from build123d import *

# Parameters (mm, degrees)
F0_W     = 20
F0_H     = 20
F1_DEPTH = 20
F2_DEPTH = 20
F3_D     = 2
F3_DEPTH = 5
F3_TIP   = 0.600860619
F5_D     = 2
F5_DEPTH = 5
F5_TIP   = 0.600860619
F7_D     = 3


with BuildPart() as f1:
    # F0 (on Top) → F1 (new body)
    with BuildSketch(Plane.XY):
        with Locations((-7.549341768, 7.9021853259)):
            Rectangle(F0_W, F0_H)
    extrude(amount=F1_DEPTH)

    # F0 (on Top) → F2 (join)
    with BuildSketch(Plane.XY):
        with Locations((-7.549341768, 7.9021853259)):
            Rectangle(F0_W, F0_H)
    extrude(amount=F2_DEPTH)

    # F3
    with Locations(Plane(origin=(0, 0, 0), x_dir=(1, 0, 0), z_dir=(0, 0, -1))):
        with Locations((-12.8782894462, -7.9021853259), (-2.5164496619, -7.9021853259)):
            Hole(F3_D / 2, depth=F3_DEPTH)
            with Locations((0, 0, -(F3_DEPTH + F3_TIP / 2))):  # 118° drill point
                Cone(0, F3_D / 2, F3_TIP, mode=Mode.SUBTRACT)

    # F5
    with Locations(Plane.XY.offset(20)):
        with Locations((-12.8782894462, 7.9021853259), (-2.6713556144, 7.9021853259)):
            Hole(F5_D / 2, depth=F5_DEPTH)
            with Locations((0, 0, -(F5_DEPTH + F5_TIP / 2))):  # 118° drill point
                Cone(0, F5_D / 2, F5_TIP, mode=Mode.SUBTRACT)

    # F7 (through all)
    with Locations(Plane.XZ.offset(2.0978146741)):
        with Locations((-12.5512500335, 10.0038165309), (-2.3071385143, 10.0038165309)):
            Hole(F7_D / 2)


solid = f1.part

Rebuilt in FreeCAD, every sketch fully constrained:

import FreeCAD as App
import Part
import Sketcher

doc = App.newDocument("Part")
body = doc.addObject("PartDesign::Body", "Body")

sketch1 = body.newObject("Sketcher::SketchObject", "Sketch")
sketch1.AttachmentSupport = (doc.getObject("XY_Plane"), [""])
sketch1.MapMode = "FlatFace"
sketch1.addGeometry([
    Part.LineSegment(App.Vector(-17.549342, 17.902185, 0), App.Vector(-17.549342, -2.097815, 0)),
    Part.LineSegment(App.Vector(-17.549342, -2.097815, 0), App.Vector(2.450658, -2.097815, 0)),
    Part.LineSegment(App.Vector(2.450658, -2.097815, 0), App.Vector(2.450658, 17.902185, 0)),
    Part.LineSegment(App.Vector(2.450658, 17.902185, 0), App.Vector(-17.549342, 17.902185, 0)),
], False)
sketch1.addConstraint([
    Sketcher.Constraint("Coincident", 0, 2, 1, 1),
    Sketcher.Constraint("Coincident", 1, 2, 2, 1),
    Sketcher.Constraint("Coincident", 2, 2, 3, 1),
    Sketcher.Constraint("Coincident", 3, 2, 0, 1),
    Sketcher.Constraint("Vertical", 0),
    Sketcher.Constraint("Horizontal", 1),
    Sketcher.Constraint("Vertical", 2),
    Sketcher.Constraint("Horizontal", 3),
    Sketcher.Constraint("Equal", 3, 0),
    Sketcher.Constraint("DistanceX", 1, 1, 1, 2, 20.0),
    Sketcher.Constraint("DistanceX", 0, 2, -1, 1, 17.549342),
    Sketcher.Constraint("DistanceY", 0, 2, -1, 1, 2.097815),
])
pad1 = body.newObject("PartDesign::Pad", "Pad")
pad1.Profile = sketch1
pad1.Length = 20

sketch2 = body.newObject("Sketcher::SketchObject", "Sketch001")
sketch2.AttachmentSupport = (doc.getObject("XY_Plane"), [""])
sketch2.MapMode = "FlatFace"
sketch2.addGeometry([
    Part.LineSegment(App.Vector(-17.549342, 17.902185, 0), App.Vector(-17.549342, -2.097815, 0)),
    Part.LineSegment(App.Vector(-17.549342, -2.097815, 0), App.Vector(2.450658, -2.097815, 0)),
    Part.LineSegment(App.Vector(2.450658, -2.097815, 0), App.Vector(2.450658, 17.902185, 0)),
    Part.LineSegment(App.Vector(2.450658, 17.902185, 0), App.Vector(-17.549342, 17.902185, 0)),
], False)
sketch2.addConstraint([
    Sketcher.Constraint("Coincident", 0, 2, 1, 1),
    Sketcher.Constraint("Coincident", 1, 2, 2, 1),
    Sketcher.Constraint("Coincident", 2, 2, 3, 1),
    Sketcher.Constraint("Coincident", 3, 2, 0, 1),
    Sketcher.Constraint("Vertical", 0),
    Sketcher.Constraint("Horizontal", 1),
    Sketcher.Constraint("Vertical", 2),
    Sketcher.Constraint("Horizontal", 3),
    Sketcher.Constraint("Equal", 3, 0),
    Sketcher.Constraint("DistanceX", 1, 1, 1, 2, 20.0),
    Sketcher.Constraint("DistanceX", 0, 2, -1, 1, 17.549342),
    Sketcher.Constraint("DistanceY", 0, 2, -1, 1, 2.097815),
])
pad2 = body.newObject("PartDesign::Pad", "Pad001")
pad2.Profile = sketch2
pad2.Length = 20

sketch3 = body.newObject("Sketcher::SketchObject", "Sketch002")
sketch3.AttachmentSupport = (doc.getObject("XY_Plane"), [""])
sketch3.MapMode = "FlatFace"
sketch3.addGeometry([
    Part.Circle(App.Vector(-12.878289, 7.902185, 0), App.Vector(0, 0, 1), 1),
    Part.Circle(App.Vector(-2.51645, 7.902185, 0), App.Vector(0, 0, 1), 1),
], False)
sketch3.addConstraint([
    Sketcher.Constraint("Equal", 0, 1),
    Sketcher.Constraint("Horizontal", 0, 3, 1, 3),
    Sketcher.Constraint("Diameter", 0, 2.0),
    Sketcher.Constraint("DistanceX", 0, 3, -1, 1, 12.878289),
    Sketcher.Constraint("DistanceX", 1, 3, -1, 1, 2.51645),
    Sketcher.Constraint("DistanceY", -1, 1, 0, 3, 7.902185),
])
doc.recompute()
hole = body.newObject("PartDesign::Hole", "Hole")
hole.Profile = sketch3
hole.ThreadType = "None"
hole.Diameter = 2
hole.DepthType = "Dimension"
hole.Depth = 5
hole.DrillPoint = "Angled"
hole.DrillPointAngle = 118
hole.Reversed = True

sketch4 = body.newObject("Sketcher::SketchObject", "Sketch003")
sketch4.AttachmentSupport = (doc.getObject("XY_Plane"), [""])
sketch4.MapMode = "FlatFace"
sketch4.AttachmentOffset = App.Placement(App.Vector(0, 0, 20), App.Rotation())
sketch4.addGeometry([
    Part.Circle(App.Vector(-12.878289, 7.902185, 0), App.Vector(0, 0, 1), 1),
    Part.Circle(App.Vector(-2.671356, 7.902185, 0), App.Vector(0, 0, 1), 1),
], False)
sketch4.addConstraint([
    Sketcher.Constraint("Equal", 0, 1),
    Sketcher.Constraint("Horizontal", 0, 3, 1, 3),
    Sketcher.Constraint("Diameter", 0, 2.0),
    Sketcher.Constraint("DistanceX", 0, 3, -1, 1, 12.878289),
    Sketcher.Constraint("DistanceY", -1, 1, 0, 3, 7.902185),
    Sketcher.Constraint("DistanceX", 1, 3, -1, 1, 2.671356),
])
doc.recompute()
hole2 = body.newObject("PartDesign::Hole", "Hole001")
hole2.Profile = sketch4
hole2.ThreadType = "None"
hole2.Diameter = 2
hole2.DepthType = "Dimension"
hole2.Depth = 5
hole2.DrillPoint = "Angled"
hole2.DrillPointAngle = 118

sketch5 = body.newObject("Sketcher::SketchObject", "Sketch004")
sketch5.AttachmentSupport = (doc.getObject("XZ_Plane"), [""])
sketch5.MapMode = "FlatFace"
sketch5.AttachmentOffset = App.Placement(App.Vector(0, 0, 2.097815), App.Rotation())
sketch5.addGeometry([
    Part.Circle(App.Vector(-12.55125, 10.003817, 0), App.Vector(0, 0, 1), 1.5),
    Part.Circle(App.Vector(-2.307139, 10.003817, 0), App.Vector(0, 0, 1), 1.5),
], False)
sketch5.addConstraint([
    Sketcher.Constraint("Equal", 0, 1),
    Sketcher.Constraint("Horizontal", 0, 3, 1, 3),
    Sketcher.Constraint("Diameter", 0, 3.0),
    Sketcher.Constraint("DistanceX", 0, 3, -1, 1, 12.55125),
    Sketcher.Constraint("DistanceX", 1, 3, -1, 1, 2.307139),
    Sketcher.Constraint("DistanceY", -1, 1, 0, 3, 10.003817),
])
doc.recompute()
hole3 = body.newObject("PartDesign::Hole", "Hole002")
hole3.Profile = sketch5
hole3.ThreadType = "None"
hole3.Diameter = 3
hole3.DepthType = "ThroughAll"

doc.recompute()
